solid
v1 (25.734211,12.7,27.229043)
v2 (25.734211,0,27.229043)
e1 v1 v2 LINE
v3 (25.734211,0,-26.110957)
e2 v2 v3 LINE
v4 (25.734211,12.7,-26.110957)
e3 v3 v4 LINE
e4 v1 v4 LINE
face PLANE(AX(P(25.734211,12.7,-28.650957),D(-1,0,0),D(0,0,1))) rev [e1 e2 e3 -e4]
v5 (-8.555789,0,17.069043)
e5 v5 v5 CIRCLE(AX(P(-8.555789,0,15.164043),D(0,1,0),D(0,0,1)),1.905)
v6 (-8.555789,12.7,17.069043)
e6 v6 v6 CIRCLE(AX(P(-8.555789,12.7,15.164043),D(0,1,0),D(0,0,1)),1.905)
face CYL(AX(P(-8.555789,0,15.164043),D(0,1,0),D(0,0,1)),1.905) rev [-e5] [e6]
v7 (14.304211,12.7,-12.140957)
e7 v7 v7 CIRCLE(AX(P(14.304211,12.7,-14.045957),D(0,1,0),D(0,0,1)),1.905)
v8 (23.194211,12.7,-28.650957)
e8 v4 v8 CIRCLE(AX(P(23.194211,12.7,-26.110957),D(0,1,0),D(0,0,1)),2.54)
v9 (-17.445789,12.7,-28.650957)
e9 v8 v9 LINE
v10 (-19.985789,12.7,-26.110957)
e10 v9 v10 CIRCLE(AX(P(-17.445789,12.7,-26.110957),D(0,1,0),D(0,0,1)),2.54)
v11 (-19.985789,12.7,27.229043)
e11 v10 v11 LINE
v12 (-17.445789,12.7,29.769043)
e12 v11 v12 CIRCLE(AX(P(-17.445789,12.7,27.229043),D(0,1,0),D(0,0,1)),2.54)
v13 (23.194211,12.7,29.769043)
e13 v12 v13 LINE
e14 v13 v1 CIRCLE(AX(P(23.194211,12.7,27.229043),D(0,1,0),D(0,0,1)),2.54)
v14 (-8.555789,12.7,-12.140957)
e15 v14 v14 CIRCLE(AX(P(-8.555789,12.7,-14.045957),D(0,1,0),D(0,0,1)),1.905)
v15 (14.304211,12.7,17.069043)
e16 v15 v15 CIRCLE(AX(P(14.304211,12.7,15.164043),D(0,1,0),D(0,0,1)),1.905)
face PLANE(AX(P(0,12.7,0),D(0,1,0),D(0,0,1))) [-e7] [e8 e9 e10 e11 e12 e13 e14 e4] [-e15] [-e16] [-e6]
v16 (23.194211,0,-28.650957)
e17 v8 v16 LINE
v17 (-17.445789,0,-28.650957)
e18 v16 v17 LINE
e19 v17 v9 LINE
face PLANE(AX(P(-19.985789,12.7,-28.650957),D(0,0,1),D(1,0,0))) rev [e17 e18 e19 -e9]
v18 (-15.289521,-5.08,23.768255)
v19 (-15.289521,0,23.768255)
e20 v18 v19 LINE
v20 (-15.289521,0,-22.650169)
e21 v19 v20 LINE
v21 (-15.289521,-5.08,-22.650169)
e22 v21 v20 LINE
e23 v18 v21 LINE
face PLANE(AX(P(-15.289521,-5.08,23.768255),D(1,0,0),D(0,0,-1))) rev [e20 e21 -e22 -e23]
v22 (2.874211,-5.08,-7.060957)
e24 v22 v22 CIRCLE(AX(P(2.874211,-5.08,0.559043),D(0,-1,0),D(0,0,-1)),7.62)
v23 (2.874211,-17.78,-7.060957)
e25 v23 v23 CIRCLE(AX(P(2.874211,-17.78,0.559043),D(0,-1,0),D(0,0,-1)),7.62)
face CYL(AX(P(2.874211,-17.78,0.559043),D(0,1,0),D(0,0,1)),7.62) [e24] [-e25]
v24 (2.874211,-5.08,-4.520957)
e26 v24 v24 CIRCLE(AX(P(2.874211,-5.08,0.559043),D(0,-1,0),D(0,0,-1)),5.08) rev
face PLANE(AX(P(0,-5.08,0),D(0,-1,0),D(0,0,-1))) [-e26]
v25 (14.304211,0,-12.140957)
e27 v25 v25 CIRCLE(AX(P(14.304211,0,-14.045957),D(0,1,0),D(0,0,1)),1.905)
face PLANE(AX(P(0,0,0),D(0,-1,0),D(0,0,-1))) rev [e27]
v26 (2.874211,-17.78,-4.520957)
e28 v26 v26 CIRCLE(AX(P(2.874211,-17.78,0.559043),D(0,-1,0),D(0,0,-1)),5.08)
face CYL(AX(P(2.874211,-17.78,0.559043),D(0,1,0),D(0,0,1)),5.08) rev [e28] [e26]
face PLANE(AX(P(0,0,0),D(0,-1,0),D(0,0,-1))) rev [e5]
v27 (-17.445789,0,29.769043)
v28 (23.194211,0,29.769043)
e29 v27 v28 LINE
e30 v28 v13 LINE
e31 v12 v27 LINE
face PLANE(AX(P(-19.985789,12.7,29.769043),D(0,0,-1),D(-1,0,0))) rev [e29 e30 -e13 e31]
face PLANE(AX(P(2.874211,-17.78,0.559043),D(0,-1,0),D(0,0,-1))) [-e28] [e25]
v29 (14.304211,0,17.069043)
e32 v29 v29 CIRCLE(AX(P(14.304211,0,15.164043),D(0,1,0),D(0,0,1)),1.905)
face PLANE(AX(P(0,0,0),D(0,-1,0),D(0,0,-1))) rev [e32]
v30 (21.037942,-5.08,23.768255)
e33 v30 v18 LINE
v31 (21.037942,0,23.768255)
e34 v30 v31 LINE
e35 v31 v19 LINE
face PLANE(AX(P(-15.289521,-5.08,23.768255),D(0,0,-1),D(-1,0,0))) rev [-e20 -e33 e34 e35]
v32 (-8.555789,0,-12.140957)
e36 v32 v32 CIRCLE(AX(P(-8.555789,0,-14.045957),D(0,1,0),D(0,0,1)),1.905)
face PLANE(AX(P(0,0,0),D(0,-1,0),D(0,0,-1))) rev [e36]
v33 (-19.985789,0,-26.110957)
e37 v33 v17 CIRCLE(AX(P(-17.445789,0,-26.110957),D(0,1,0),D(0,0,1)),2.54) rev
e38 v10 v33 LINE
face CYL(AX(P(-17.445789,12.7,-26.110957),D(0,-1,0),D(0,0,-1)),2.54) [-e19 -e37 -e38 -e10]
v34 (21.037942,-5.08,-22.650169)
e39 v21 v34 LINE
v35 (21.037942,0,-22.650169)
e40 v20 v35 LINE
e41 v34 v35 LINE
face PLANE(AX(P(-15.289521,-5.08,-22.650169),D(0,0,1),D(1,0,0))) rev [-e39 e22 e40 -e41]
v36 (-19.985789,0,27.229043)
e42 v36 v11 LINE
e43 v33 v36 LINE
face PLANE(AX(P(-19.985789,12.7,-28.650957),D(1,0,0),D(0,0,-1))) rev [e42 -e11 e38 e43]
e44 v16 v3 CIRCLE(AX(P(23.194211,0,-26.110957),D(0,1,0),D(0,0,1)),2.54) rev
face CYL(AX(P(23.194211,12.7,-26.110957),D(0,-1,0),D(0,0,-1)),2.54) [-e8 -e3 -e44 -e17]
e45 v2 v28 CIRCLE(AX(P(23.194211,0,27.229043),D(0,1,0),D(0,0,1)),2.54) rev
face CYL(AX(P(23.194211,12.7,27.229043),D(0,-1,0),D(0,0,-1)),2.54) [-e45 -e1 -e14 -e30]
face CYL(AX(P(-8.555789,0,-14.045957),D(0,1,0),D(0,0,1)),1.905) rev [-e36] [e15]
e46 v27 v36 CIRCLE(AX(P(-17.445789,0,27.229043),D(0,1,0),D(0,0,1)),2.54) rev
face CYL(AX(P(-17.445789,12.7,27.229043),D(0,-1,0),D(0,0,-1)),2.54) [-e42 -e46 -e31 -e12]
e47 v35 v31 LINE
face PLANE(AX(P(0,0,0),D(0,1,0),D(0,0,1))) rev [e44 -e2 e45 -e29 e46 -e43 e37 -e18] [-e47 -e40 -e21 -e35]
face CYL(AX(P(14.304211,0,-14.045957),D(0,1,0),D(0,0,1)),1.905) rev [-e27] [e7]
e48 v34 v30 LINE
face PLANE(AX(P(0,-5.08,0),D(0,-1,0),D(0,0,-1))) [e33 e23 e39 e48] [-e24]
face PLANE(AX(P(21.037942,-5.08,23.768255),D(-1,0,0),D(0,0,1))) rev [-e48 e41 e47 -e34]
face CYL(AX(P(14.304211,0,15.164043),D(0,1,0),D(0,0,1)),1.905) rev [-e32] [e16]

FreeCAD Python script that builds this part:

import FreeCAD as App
import Part
import Sketcher
from FreeCAD import Vector
Q = App.Units.Quantity


def edges_at(feature, points):
    """Names of the edges that pass closest to the given points."""
    edges = feature.Shape.Edges
    near = lambda p: min(range(len(edges)), key=lambda i: edges[i].distToShape(Part.Vertex(*p))[0])
    return sorted({f"Edge{near(p) + 1}" for p in points})

doc = App.newDocument("Part")
body = doc.addObject("PartDesign::Body", "Body")

sketch1 = body.newObject("Sketcher::SketchObject", "Sketch")
sketch1.AttachmentSupport = (doc.getObject("XZ_Plane"), [""])
sketch1.MapMode = "FlatFace"
sketch1.addGeometry([
    Part.LineSegment(Vector(-20, -29, 0), Vector(-20, 30, 0)),
    Part.LineSegment(Vector(-20, 30, 0), Vector(26, 30, 0)),
    Part.LineSegment(Vector(26, 30, 0), Vector(26, -29, 0)),
    Part.LineSegment(Vector(26, -29, 0), Vector(-20, -29, 0)),
], False)
sketch1.addConstraint([
    Sketcher.Constraint("Coincident", 0, 2, 1, 1),
    Sketcher.Constraint("Coincident", 1, 2, 2, 1),
    Sketcher.Constraint("Coincident", 2, 2, 3, 1),
    Sketcher.Constraint("Coincident", 3, 2, 0, 1),
    Sketcher.Constraint("Vertical", 0),
    Sketcher.Constraint("Horizontal", 1),
    Sketcher.Constraint("Vertical", 2),
    Sketcher.Constraint("Horizontal", 3),
    Sketcher.Constraint("DistanceX", 1, 1, 1, 2, Q("1.8 in")),
    Sketcher.Constraint("DistanceY", 0, 1, 0, 2, Q("2.3 in")),
    Sketcher.Constraint("DistanceX", 0, 2, -1, 1, 19.985789),
    Sketcher.Constraint("DistanceY", -1, 1, 0, 2, 29.769043),
])
pad1 = body.newObject("PartDesign::Pad", "Pad")
pad1.Profile = sketch1
pad1.Length = Q("0.5 in")
pad1.Reversed = True

sketch2 = body.newObject("Sketcher::SketchObject", "Sketch001")
sketch2.AttachmentSupport = (doc.getObject("XZ_Plane"), [""])
sketch2.MapMode = "FlatFace"
sketch2.AttachmentOffset = App.Placement(Vector(0, 0, -0.5 * 25.4), App.Rotation())
sketch2.addGeometry([
    Part.Circle(Vector(-8.6, -14, 0), Vector(0, 0, 1), 1.9),
    Part.Circle(Vector(14.3, -14, 0), Vector(0, 0, 1), 1.9),
    Part.Circle(Vector(-8.6, 15.2, 0), Vector(0, 0, 1), 1.9),
    Part.Circle(Vector(14.3, 15.2, 0), Vector(0, 0, 1), 1.9),
], False)
sketch2.addConstraint([
    Sketcher.Constraint("Equal", 0, 1),
    Sketcher.Constraint("Equal", 1, 2),
    Sketcher.Constraint("Equal", 2, 3),
    Sketcher.Constraint("Horizontal", 0, 3, 1, 3),
    Sketcher.Constraint("Horizontal", 2, 3, 3, 3),
    Sketcher.Constraint("Vertical", 0, 3, 2, 3),
    Sketcher.Constraint("Vertical", 1, 3, 3, 3),
    Sketcher.Constraint("Diameter", 0, Q("0.15 in")),
    Sketcher.Constraint("DistanceX", 0, 3, 1, 3, Q("0.9 in")),
    Sketcher.Constraint("DistanceY", 0, 3, 2, 3, Q("1.15 in")),
    Sketcher.Constraint("DistanceX", 0, 3, -1, 1, 8.555789),
    Sketcher.Constraint("DistanceY", 0, 3, -1, 1, 14.045957),
])
pocket1 = body.newObject("PartDesign::Pocket", "Pocket")
pocket1.Profile = sketch2
pocket1.Type = "ThroughAll"
pocket1.Reversed = True

sketch3 = body.newObject("Sketcher::SketchObject", "Sketch002")
sketch3.AttachmentSupport = (doc.getObject("XZ_Plane"), [""])
sketch3.MapMode = "FlatFace"
sketch3.addGeometry([
    Part.LineSegment(Vector(-15, 24, 0), Vector(-15, -23, 0)),
    Part.LineSegment(Vector(-15, -23, 0), Vector(21, -23, 0)),
    Part.LineSegment(Vector(21, -23, 0), Vector(21, 24, 0)),
    Part.LineSegment(Vector(21, 24, 0), Vector(-15, 24, 0)),
], False)
sketch3.addConstraint([
    Sketcher.Constraint("Coincident", 0, 2, 1, 1),
    Sketcher.Constraint("Coincident", 1, 2, 2, 1),
    Sketcher.Constraint("Coincident", 2, 2, 3, 1),
    Sketcher.Constraint("Coincident", 3, 2, 0, 1),
    Sketcher.Constraint("Vertical", 0),
    Sketcher.Constraint("Horizontal", 1),
    Sketcher.Constraint("Vertical", 2),
    Sketcher.Constraint("Horizontal", 3),
    Sketcher.Constraint("DistanceX", 1, 1, 1, 2, 36.327462),
    Sketcher.Constraint("DistanceY", 0, 2, 0, 1, 46.418424),
    Sketcher.Constraint("DistanceX", 0, 2, -1, 1, 15.289521),
    Sketcher.Constraint("DistanceY", 0, 2, -1, 1, 22.650169),
])
pad2 = body.newObject("PartDesign::Pad", "Pad001")
pad2.Profile = sketch3
pad2.Length = Q("0.2 in")

sketch4 = body.newObject("Sketcher::SketchObject", "Sketch003")
sketch4.AttachmentSupport = (doc.getObject("XZ_Plane"), [""])
sketch4.MapMode = "FlatFace"
sketch4.AttachmentOffset = App.Placement(Vector(0, 0, 0.2 * 25.4), App.Rotation())
sketch4.addGeometry([
    Part.Circle(Vector(3, 1, 0), Vector(0, 0, 1), 8),
    Part.Circle(Vector(3, 1, 0), Vector(0, 0, 1), 5),
], False)
sketch4.addConstraint([
    Sketcher.Constraint("Coincident", 1, 3, 0, 3),
    Sketcher.Constraint("Diameter", 0, Q("0.6 in")),
    Sketcher.Constraint("Diameter", 1, Q("0.4 in")),
    Sketcher.Constraint("DistanceX", -1, 1, 0, 3, 2.874211),
    Sketcher.Constraint("DistanceY", -1, 1, 0, 3, 0.559043),
])
pad3 = body.newObject("PartDesign::Pad", "Pad002")
pad3.Profile = sketch4
pad3.Length = Q("0.5 in")
doc.recompute()

fillet = body.newObject("PartDesign::Fillet", "Fillet")
fillet.Base = (pad3, edges_at(pad3, [
    (-19.986, 6.35, -28.651),
    (25.734, 6.35, -28.651),
    (25.734, 6.35, 29.769),
    (-19.986, 6.35, 29.769),
]))
fillet.Radius = Q("0.1 in")

doc.recompute()
